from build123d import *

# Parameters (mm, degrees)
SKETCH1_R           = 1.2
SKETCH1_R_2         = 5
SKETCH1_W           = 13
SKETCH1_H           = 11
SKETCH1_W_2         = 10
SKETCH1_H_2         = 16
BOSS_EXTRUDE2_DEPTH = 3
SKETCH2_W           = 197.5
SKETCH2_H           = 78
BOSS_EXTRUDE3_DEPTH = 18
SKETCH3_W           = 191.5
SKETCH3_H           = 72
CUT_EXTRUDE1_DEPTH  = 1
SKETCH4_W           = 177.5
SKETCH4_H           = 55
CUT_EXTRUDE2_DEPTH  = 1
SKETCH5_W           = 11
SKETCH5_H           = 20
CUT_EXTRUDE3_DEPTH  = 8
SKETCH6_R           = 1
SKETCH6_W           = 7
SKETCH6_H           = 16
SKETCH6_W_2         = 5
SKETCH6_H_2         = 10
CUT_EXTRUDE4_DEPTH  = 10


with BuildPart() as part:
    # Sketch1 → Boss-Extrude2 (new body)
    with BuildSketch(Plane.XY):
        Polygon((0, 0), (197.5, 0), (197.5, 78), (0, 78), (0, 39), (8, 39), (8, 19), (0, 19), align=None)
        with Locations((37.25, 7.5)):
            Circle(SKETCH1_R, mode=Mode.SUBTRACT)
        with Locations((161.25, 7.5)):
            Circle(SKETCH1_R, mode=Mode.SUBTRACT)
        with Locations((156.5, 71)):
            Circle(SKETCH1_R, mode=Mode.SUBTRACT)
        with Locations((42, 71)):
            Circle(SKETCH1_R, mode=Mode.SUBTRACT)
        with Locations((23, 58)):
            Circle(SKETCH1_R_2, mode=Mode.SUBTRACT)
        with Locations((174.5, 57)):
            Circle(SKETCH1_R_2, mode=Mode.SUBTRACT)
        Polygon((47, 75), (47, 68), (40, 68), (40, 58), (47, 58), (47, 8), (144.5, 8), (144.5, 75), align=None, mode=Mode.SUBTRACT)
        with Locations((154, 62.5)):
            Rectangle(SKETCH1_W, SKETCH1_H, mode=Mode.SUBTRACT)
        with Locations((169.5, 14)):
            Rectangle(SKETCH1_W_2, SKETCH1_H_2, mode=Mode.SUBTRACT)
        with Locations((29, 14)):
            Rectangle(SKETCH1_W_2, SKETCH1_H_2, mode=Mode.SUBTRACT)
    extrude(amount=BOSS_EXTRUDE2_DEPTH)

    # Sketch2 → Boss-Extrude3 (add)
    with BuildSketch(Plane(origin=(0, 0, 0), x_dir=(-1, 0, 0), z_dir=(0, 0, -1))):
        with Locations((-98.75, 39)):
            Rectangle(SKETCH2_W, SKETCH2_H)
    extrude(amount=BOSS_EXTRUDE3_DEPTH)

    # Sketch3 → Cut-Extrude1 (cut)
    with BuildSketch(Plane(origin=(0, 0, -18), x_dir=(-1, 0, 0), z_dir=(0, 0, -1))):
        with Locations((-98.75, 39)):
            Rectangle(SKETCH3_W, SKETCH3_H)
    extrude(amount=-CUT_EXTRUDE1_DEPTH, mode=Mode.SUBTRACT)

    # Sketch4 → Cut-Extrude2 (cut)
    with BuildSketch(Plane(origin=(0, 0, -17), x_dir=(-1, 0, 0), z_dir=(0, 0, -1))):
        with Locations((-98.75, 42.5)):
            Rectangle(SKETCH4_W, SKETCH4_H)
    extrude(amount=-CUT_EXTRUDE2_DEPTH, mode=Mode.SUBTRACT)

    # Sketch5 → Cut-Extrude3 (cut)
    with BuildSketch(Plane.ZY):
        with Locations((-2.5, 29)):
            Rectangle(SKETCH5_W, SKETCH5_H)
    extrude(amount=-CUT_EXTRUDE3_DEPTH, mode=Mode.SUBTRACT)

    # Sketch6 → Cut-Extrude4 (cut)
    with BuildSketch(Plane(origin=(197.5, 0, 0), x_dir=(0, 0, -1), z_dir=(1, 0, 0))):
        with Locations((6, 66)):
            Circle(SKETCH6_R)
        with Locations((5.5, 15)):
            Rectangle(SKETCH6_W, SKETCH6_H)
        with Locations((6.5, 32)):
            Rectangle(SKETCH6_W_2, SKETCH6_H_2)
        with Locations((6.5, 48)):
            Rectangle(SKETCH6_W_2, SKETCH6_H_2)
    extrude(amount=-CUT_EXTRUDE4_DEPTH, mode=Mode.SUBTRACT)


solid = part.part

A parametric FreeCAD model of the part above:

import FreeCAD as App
import Part
import Sketcher
from FreeCAD import Vector
Q = App.Units.Quantity


def add_polygon(sketch, points):
    """Adds a closed chain of lines whose ends are joined by coincident constraints."""
    first, n = sketch.GeometryCount, len(points)
    for a, b in zip(points, points[1:] + points[:1]):
        sketch.addGeometry(Part.LineSegment(App.Vector(*a, 0), App.Vector(*b, 0)), False)
    for i in range(n):
        sketch.addConstraint(Sketcher.Constraint("Coincident", first + i, 2, first + (i + 1) % n, 1))

doc = App.newDocument("Part")
body = doc.addObject("PartDesign::Body", "Body")

sketch1 = body.newObject("Sketcher::SketchObject", "Sketch")
sketch1.AttachmentSupport = (doc.getObject("XY_Plane"), [""])
sketch1.MapMode = "FlatFace"
add_polygon(sketch1, [(0, 0), (197.5, 0), (197.5, 78), (0, 78), (0, 39), (8, 39), (8, 19), (0, 19)])
sketch1.addGeometry(Part.Circle(Vector(37.2, 7.5, 0), Vector(0, 0, 1), 1.2), False)
add_polygon(sketch1, [(34, 6), (24, 6), (24, 22), (34, 22)])
sketch1.addGeometry(Part.Circle(Vector(161.2, 7.5, 0), Vector(0, 0, 1), 1.2), False)
add_polygon(sketch1, [(174.5, 6), (164.5, 6), (164.5, 22), (174.5, 22)])
add_polygon(sketch1, [(47, 68), (47, 75), (144.5, 75), (144.5, 8), (47, 8), (47, 58), (40, 58), (40, 68)])
sketch1.addGeometry(Part.Circle(Vector(23, 58, 0), Vector(0, 0, 1), 5), False)
sketch1.addGeometry(Part.Circle(Vector(42, 71, 0), Vector(0, 0, 1), 1.2), False)
sketch1.addGeometry(Part.Circle(Vector(174.5, 57, 0), Vector(0, 0, 1), 5), False)
add_polygon(sketch1, [(160.5, 57), (147.5, 57), (147.5, 68), (160.5, 68)])
sketch1.addGeometry(Part.Circle(Vector(156.5, 71, 0), Vector(0, 0, 1), 1.2), False)
sketch1.addConstraint(Sketcher.Constraint("Horizontal", 0))
sketch1.addConstraint(Sketcher.Constraint("Vertical", 1))
sketch1.addConstraint(Sketcher.Constraint("Horizontal", 2))
sketch1.addConstraint(Sketcher.Constraint("Vertical", 3))
sketch1.addConstraint(Sketcher.Constraint("Horizontal", 4))
sketch1.addConstraint(Sketcher.Constraint("Vertical", 5))
sketch1.addConstraint(Sketcher.Constraint("Horizontal", 6))
sketch1.addConstraint(Sketcher.Constraint("Vertical", 7))
sketch1.addConstraint(Sketcher.Constraint("Horizontal", 9))
sketch1.addConstraint(Sketcher.Constraint("Vertical", 10))
sketch1.addConstraint(Sketcher.Constraint("Horizontal", 11))
sketch1.addConstraint(Sketcher.Constraint("Vertical", 12))
sketch1.addConstraint(Sketcher.Constraint("Horizontal", 14))
sketch1.addConstraint(Sketcher.Constraint("Vertical", 15))
sketch1.addConstraint(Sketcher.Constraint("Horizontal", 16))
sketch1.addConstraint(Sketcher.Constraint("Vertical", 17))
sketch1.addConstraint(Sketcher.Constraint("Vertical", 18))
sketch1.addConstraint(Sketcher.Constraint("Horizontal", 19))
sketch1.addConstraint(Sketcher.Constraint("Vertical", 20))
sketch1.addConstraint(Sketcher.Constraint("Horizontal", 21))
sketch1.addConstraint(Sketcher.Constraint("Vertical", 22))
sketch1.addConstraint(Sketcher.Constraint("Horizontal", 23))
sketch1.addConstraint(Sketcher.Constraint("Vertical", 24))
sketch1.addConstraint(Sketcher.Constraint("Horizontal", 25))
sketch1.addConstraint(Sketcher.Constraint("Horizontal", 29))
sketch1.addConstraint(Sketcher.Constraint("Vertical", 30))
sketch1.addConstraint(Sketcher.Constraint("Horizontal", 31))
sketch1.addConstraint(Sketcher.Constraint("Vertical", 32))
sketch1.addConstraint(Sketcher.Constraint("Coincident", 7, 2, -1, 1))
sketch1.addConstraint(Sketcher.Constraint("Equal", 8, 13))
sketch1.addConstraint(Sketcher.Constraint("Equal", 13, 27))
sketch1.addConstraint(Sketcher.Constraint("Equal", 26, 28))
sketch1.addConstraint(Sketcher.Constraint("Equal", 27, 33))
sketch1.addConstraint(Sketcher.Constraint("PointOnObject", 2, 2, -2))
sketch1.addConstraint(Sketcher.Constraint("Horizontal", 8, 3, 13, 3))
sketch1.addConstraint(Sketcher.Constraint("Horizontal", 27, 3, 33, 3))
sketch1.addConstraint(Sketcher.Constraint("Horizontal", 12, 2, 14, 2))
sketch1.addConstraint(Sketcher.Constraint("Horizontal", 11, 2, 15, 2))
sketch1.addConstraint(Sketcher.Constraint("Horizontal", 26, 3, 22, 2))
sketch1.addConstraint(Sketcher.Constraint("Horizontal", 28, 3, 29, 2))
sketch1.addConstraint(Sketcher.Constraint("Horizontal", 25, 2, 30, 2))
sketch1.addConstraint(Sketcher.Constraint("Vertical", 28, 3, 16, 2))
sketch1.addConstraint(Sketcher.Constraint("Vertical", 18, 2, 21, 2))
sketch1.addConstraint(Sketcher.Constraint("Equal", 11, 14))
sketch1.addConstraint(Sketcher.Constraint("Equal", 25, 18))
sketch1.addConstraint(Sketcher.Constraint("Equal", 16, 24))
sketch1.addConstraint(Sketcher.Constraint("Diameter", 26, Q("10 mm")))
sketch1.addConstraint(Sketcher.Constraint("Diameter", 8, Q("2.4 mm")))
sketch1.addConstraint(Sketcher.Constraint("DistanceX", 4, 1, 4, 2, Q("8 mm")))
sketch1.addConstraint(Sketcher.Constraint("DistanceX", 9, 2, 9, 1, Q("10 mm")))
sketch1.addConstraint(Sketcher.Constraint("DistanceX", 23, 2, 23, 1, Q("7 mm")))
sketch1.addConstraint(Sketcher.Constraint("DistanceX", 29, 2, 29, 1, Q("13 mm")))
sketch1.addConstraint(Sketcher.Constraint("DistanceY", 1, 1, 1, 2, Q("78 mm")))
sketch1.addConstraint(Sketcher.Constraint("DistanceY", 3, 2, 3, 1, Q("39 mm")))
sketch1.addConstraint(Sketcher.Constraint("DistanceY", 5, 2, 5, 1, Q("20 mm")))
sketch1.addConstraint(Sketcher.Constraint("DistanceY", 10, 1, 10, 2, Q("16 mm")))
sketch1.addConstraint(Sketcher.Constraint("DistanceY", 20, 2, 20, 1, Q("67 mm")))
sketch1.addConstraint(Sketcher.Constraint("DistanceY", 30, 1, 30, 2, Q("11 mm")))
sketch1.addConstraint(Sketcher.Constraint("DistanceX", 0, 1, 0, 2, Q("197.5 mm")))
sketch1.addConstraint(Sketcher.Constraint("DistanceX", 19, 1, 19, 2, Q("97.5 mm")))
sketch1.addConstraint(Sketcher.Constraint("DistanceX", -1, 1, 26, 3, Q("23 mm")))
sketch1.addConstraint(Sketcher.Constraint("DistanceY", -1, 1, 26, 3, Q("58 mm")))
sketch1.addConstraint(Sketcher.Constraint("DistanceX", -1, 1, 27, 3, Q("42 mm")))
sketch1.addConstraint(Sketcher.Constraint("DistanceY", -1, 1, 27, 3, Q("71 mm")))
sketch1.addConstraint(Sketcher.Constraint("DistanceX", -1, 1, 9, 2, Q("24 mm")))
sketch1.addConstraint(Sketcher.Constraint("DistanceY", -1, 1, 9, 2, Q("6 mm")))
sketch1.addConstraint(Sketcher.Constraint("DistanceX", -1, 1, 18, 2, Q("47 mm")))
sketch1.addConstraint(Sketcher.Constraint("DistanceX", 8, 3, 13, 3, Q("124 mm")))
sketch1.addConstraint(Sketcher.Constraint("DistanceX", 33, 3, 28, 3, Q("18 mm")))
sketch1.addConstraint(Sketcher.Constraint("DistanceX", 28, 3, 0, 2, Q("23 mm")))
sketch1.addConstraint(Sketcher.Constraint("DistanceX", 29, 2, 33, 3, Q("9 mm")))
sketch1.addConstraint(Sketcher.Constraint("DistanceY", -1, 1, 8, 3, Q("7.5 mm")))
sketch1.addConstraint(Sketcher.Constraint("DistanceX", -1, 1, 8, 3, Q("37.25 mm")))
pad1 = body.newObject("PartDesign::Pad", "Pad")
pad1.Profile = sketch1
pad1.Length = 3

sketch2 = body.newObject("Sketcher::SketchObject", "Sketch001")
sketch2.AttachmentSupport = (doc.getObject("XY_Plane"), [""])
sketch2.MapMode = "FlatFace"
add_polygon(sketch2, [(198, 78), (198, 0), (0, 0), (0, 78)])
sketch2.addConstraint(Sketcher.Constraint("Vertical", 0))
sketch2.addConstraint(Sketcher.Constraint("Horizontal", 1))
sketch2.addConstraint(Sketcher.Constraint("Vertical", 2))
sketch2.addConstraint(Sketcher.Constraint("Horizontal", 3))
sketch2.addConstraint(Sketcher.Constraint("Coincident", 1, 2, -1, 1))
sketch2.addConstraint(Sketcher.Constraint("DistanceY", 0, 2, 0, 1, Q("78 mm")))
sketch2.addConstraint(Sketcher.Constraint("DistanceX", 1, 2, 1, 1, Q("197.5 mm")))
pad2 = body.newObject("PartDesign::Pad", "Pad001")
pad2.Profile = sketch2
pad2.Length = 18
pad2.Reversed = True

sketch3 = body.newObject("Sketcher::SketchObject", "Sketch002")
sketch3.AttachmentSupport = (doc.getObject("XY_Plane"), [""])
sketch3.MapMode = "FlatFace"
sketch3.AttachmentOffset = App.Placement(Vector(0, 0, -18), App.Rotation())
add_polygon(sketch3, [(194, 75), (194, 3), (3, 3), (3, 75)])
sketch3.addConstraint(Sketcher.Constraint("Vertical", 0))
sketch3.addConstraint(Sketcher.Constraint("Horizontal", 1))
sketch3.addConstraint(Sketcher.Constraint("Vertical", 2))
sketch3.addConstraint(Sketcher.Constraint("Horizontal", 3))
sketch3.addConstraint(Sketcher.Constraint("DistanceY", 0, 2, 0, 1, Q("72 mm")))
sketch3.addConstraint(Sketcher.Constraint("DistanceX", 1, 2, 1, 1, Q("191.5 mm")))
sketch3.addConstraint(Sketcher.Constraint("DistanceY", -1, 1, 0, 2, Q("3 mm")))
sketch3.addConstraint(Sketcher.Constraint("DistanceX", -1, 1, 1, 2, Q("3 mm")))
pocket1 = body.newObject("PartDesign::Pocket", "Pocket")
pocket1.Profile = sketch3
pocket1.Length = 1
pocket1.Reversed = True

sketch4 = body.newObject("Sketcher::SketchObject", "Sketch003")
sketch4.AttachmentSupport = (doc.getObject("XY_Plane"), [""])
sketch4.MapMode = "FlatFace"
sketch4.AttachmentOffset = App.Placement(Vector(0, 0, -17), App.Rotation())
add_polygon(sketch4, [(188, 70), (188, 15), (10, 15), (10, 70)])
sketch4.addConstraint(Sketcher.Constraint("Vertical", 0))
sketch4.addConstraint(Sketcher.Constraint("Horizontal", 1))
sketch4.addConstraint(Sketcher.Constraint("Vertical", 2))
sketch4.addConstraint(Sketcher.Constraint("Horizontal", 3))
sketch4.addConstraint(Sketcher.Constraint("DistanceY", 0, 2, 0, 1, Q("55 mm")))
sketch4.addConstraint(Sketcher.Constraint("DistanceX", 1, 2, 1, 1, Q("177.5 mm")))
sketch4.addConstraint(Sketcher.Constraint("DistanceY", -1, 1, 0, 2, Q("15 mm")))
sketch4.addConstraint(Sketcher.Constraint("DistanceX", -1, 1, 1, 2, Q("10 mm")))
pocket2 = body.newObject("PartDesign::Pocket", "Pocket001")
pocket2.Profile = sketch4
pocket2.Length = 1
pocket2.Reversed = True

sketch5 = body.newObject("Sketcher::SketchObject", "Sketch004")
sketch5.AttachmentSupport = (doc.getObject("YZ_Plane"), [""])
sketch5.MapMode = "FlatFace"
add_polygon(sketch5, [(39, -8), (19, -8), (19, 3), (39, 3)])
sketch5.addConstraint(Sketcher.Constraint("Horizontal", 0))
sketch5.addConstraint(Sketcher.Constraint("Vertical", 1))
sketch5.addConstraint(Sketcher.Constraint("Horizontal", 2))
sketch5.addConstraint(Sketcher.Constraint("Vertical", 3))
sketch5.addConstraint(Sketcher.Constraint("DistanceX", 0, 2, 0, 1, Q("20 mm")))
sketch5.addConstraint(Sketcher.Constraint("DistanceY", 1, 1, 1, 2, Q("11 mm")))
sketch5.addConstraint(Sketcher.Constraint("DistanceX", -1, 1, 0, 2, Q("19 mm")))
sketch5.addConstraint(Sketcher.Constraint("DistanceY", 0, 2, -1, 1, Q("8 mm")))
pocket3 = body.newObject("PartDesign::Pocket", "Pocket002")
pocket3.Profile = sketch5
pocket3.Length = 8
pocket3.Reversed = True

sketch6 = body.newObject("Sketcher::SketchObject", "Sketch005")
sketch6.AttachmentSupport = (doc.getObject("YZ_Plane"), [""])
sketch6.MapMode = "FlatFace"
sketch6.AttachmentOffset = App.Placement(Vector(0, 0, 197.5), App.Rotation())
sketch6.addGeometry(Part.Circle(Vector(66, -6, 0), Vector(0, 0, 1), 1), False)
add_polygon(sketch6, [(23, -2), (7, -2), (7, -9), (23, -9)])
add_polygon(sketch6, [(37, -4), (27, -4), (27, -9), (37, -9)])
add_polygon(sketch6, [(53, -4), (43, -4), (43, -9), (53, -9)])
sketch6.addConstraint(Sketcher.Constraint("Horizontal", 1))
sketch6.addConstraint(Sketcher.Constraint("Vertical", 2))
sketch6.addConstraint(Sketcher.Constraint("Horizontal", 3))
sketch6.addConstraint(Sketcher.Constraint("Vertical", 4))
sketch6.addConstraint(Sketcher.Constraint("Horizontal", 5))
sketch6.addConstraint(Sketcher.Constraint("Vertical", 6))
sketch6.addConstraint(Sketcher.Constraint("Horizontal", 7))
sketch6.addConstraint(Sketcher.Constraint("Vertical", 8))
sketch6.addConstraint(Sketcher.Constraint("Horizontal", 9))
sketch6.addConstraint(Sketcher.Constraint("Vertical", 10))
sketch6.addConstraint(Sketcher.Constraint("Horizontal", 11))
sketch6.addConstraint(Sketcher.Constraint("Vertical", 12))
sketch6.addConstraint(Sketcher.Constraint("Horizontal", 3, 2, 6, 2))
sketch6.addConstraint(Sketcher.Constraint("Horizontal", 8, 2, 9, 2))
sketch6.addConstraint(Sketcher.Constraint("Horizontal", 7, 2, 10, 2))
sketch6.addConstraint(Sketcher.Constraint("Equal", 7, 9))
sketch6.addConstraint(Sketcher.Constraint("Diameter", 0, Q("2 mm")))
sketch6.addConstraint(Sketcher.Constraint("DistanceX", 1, 2, 1, 1, Q("16 mm")))
sketch6.addConstraint(Sketcher.Constraint("DistanceX", 5, 2, 5, 1, Q("10 mm")))
sketch6.addConstraint(Sketcher.Constraint("DistanceY", 2, 2, 2, 1, Q("7 mm")))
sketch6.addConstraint(Sketcher.Constraint("DistanceY", 6, 2, 6, 1, Q("5 mm")))
sketch6.addConstraint(Sketcher.Constraint("DistanceX", -1, 1, 0, 3, Q("66 mm")))
sketch6.addConstraint(Sketcher.Constraint("DistanceY", 0, 3, -1, 1, Q("6 mm")))
sketch6.addConstraint(Sketcher.Constraint("DistanceX", -1, 1, 1, 2, Q("7 mm")))
sketch6.addConstraint(Sketcher.Constraint("DistanceY", 1, 2, -1, 1, Q("2 mm")))
sketch6.addConstraint(Sketcher.Constraint("DistanceX", -1, 1, 5, 2, Q("27 mm")))
sketch6.addConstraint(Sketcher.Constraint("DistanceX", -1, 1, 9, 2, Q("43 mm")))
pocket4 = body.newObject("PartDesign::Pocket", "Pocket003")
pocket4.Profile = sketch6
pocket4.Length = 10

doc.recompute()
